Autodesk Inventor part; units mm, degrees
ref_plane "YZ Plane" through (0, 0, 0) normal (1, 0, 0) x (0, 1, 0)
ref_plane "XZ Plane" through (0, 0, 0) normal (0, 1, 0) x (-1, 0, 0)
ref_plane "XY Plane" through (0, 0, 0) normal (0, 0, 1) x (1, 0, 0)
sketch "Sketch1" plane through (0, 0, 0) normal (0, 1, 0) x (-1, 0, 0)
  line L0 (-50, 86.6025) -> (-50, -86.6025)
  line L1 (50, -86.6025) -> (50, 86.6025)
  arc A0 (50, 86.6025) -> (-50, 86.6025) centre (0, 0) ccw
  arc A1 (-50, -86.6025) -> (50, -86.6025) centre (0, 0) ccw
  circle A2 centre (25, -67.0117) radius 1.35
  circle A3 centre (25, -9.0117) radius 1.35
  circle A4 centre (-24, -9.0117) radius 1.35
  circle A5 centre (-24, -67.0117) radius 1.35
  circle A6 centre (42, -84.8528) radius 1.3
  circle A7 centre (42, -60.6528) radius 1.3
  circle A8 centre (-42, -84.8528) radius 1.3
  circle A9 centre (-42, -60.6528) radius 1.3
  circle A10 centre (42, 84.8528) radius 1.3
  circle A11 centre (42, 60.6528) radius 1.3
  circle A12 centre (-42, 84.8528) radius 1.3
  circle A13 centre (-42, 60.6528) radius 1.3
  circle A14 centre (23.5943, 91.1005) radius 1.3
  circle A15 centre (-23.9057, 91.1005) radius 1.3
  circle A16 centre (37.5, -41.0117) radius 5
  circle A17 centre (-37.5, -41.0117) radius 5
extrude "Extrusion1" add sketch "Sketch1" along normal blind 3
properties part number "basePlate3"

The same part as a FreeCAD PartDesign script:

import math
import FreeCAD as App
import Part
import Sketcher
from FreeCAD import Vector
Q = App.Units.Quantity

doc = App.newDocument("Part")
body = doc.addObject("PartDesign::Body", "Body")

# Sketch on XZ plane
sketch1 = body.newObject("Sketcher::SketchObject", "Sketch")
sketch1.AttachmentSupport = (doc.getObject("XZ_Plane"), [""])
sketch1.MapMode = "FlatFace"
sketch1.addGeometry(Part.ArcOfCircle(Part.Circle(Vector(0, 0, 0), Vector(0, 0, 1), 99.999965), math.radians(59.999988), math.radians(120.000012)), False)
sketch1.addGeometry(Part.LineSegment(Vector(50, 86.6025, 0), Vector(50, -86.6025, 0)), False)
sketch1.addGeometry(Part.ArcOfCircle(Part.Circle(Vector(0, 0, 0), Vector(0, 0, 1), 99.999965), math.radians(-120.000012), math.radians(-59.999988)), False)
sketch1.addGeometry(Part.LineSegment(Vector(-50, -86.6025, 0), Vector(-50, 86.6025, 0)), False)
sketch1.addGeometry(Part.Circle(Vector(42, -84.8528, 0), Vector(0, 0, 1), 1.3), False)
sketch1.addGeometry(Part.Circle(Vector(42, -60.6528, 0), Vector(0, 0, 1), 1.3), False)
sketch1.addGeometry(Part.Circle(Vector(24, -67.0117, 0), Vector(0, 0, 1), 1.35), False)
sketch1.addGeometry(Part.Circle(Vector(37.5, -41.0117, 0), Vector(0, 0, 1), 5), False)
sketch1.addGeometry(Part.Circle(Vector(24, -9.0117, 0), Vector(0, 0, 1), 1.35), False)
sketch1.addGeometry(Part.Circle(Vector(-25, -67.0117, 0), Vector(0, 0, 1), 1.35), False)
sketch1.addGeometry(Part.Circle(Vector(-42, -84.8528, 0), Vector(0, 0, 1), 1.3), False)
sketch1.addGeometry(Part.Circle(Vector(-42, -60.6528, 0), Vector(0, 0, 1), 1.3), False)
sketch1.addGeometry(Part.Circle(Vector(-25, -9.0117, 0), Vector(0, 0, 1), 1.35), False)
sketch1.addGeometry(Part.Circle(Vector(-37.5, -41.0117, 0), Vector(0, 0, 1), 5), False)
sketch1.addGeometry(Part.Circle(Vector(42, 60.6528, 0), Vector(0, 0, 1), 1.3), False)
sketch1.addGeometry(Part.Circle(Vector(42, 84.8528, 0), Vector(0, 0, 1), 1.3), False)
sketch1.addGeometry(Part.Circle(Vector(23.9057, 91.1005, 0), Vector(0, 0, 1), 1.3), False)
sketch1.addGeometry(Part.Circle(Vector(-23.5943, 91.1005, 0), Vector(0, 0, 1), 1.3), False)
sketch1.addGeometry(Part.Circle(Vector(-42, 60.6528, 0), Vector(0, 0, 1), 1.3), False)
sketch1.addGeometry(Part.Circle(Vector(-42, 84.8528, 0), Vector(0, 0, 1), 1.3), False)
sketch1.addConstraint(Sketcher.Constraint("Coincident", 0, 1, 1, 1))
sketch1.addConstraint(Sketcher.Constraint("Coincident", 1, 2, 2, 2))
sketch1.addConstraint(Sketcher.Constraint("Coincident", 2, 1, 3, 1))
sketch1.addConstraint(Sketcher.Constraint("Coincident", 3, 2, 0, 2))
sketch1.addConstraint(Sketcher.Constraint("Vertical", 1))
sketch1.addConstraint(Sketcher.Constraint("Vertical", 3))
sketch1.addConstraint(Sketcher.Constraint("Coincident", 0, 3, -1, 1))
sketch1.addConstraint(Sketcher.Constraint("Coincident", 2, 3, -1, 1))
sketch1.addConstraint(Sketcher.Constraint("Equal", 0, 2))
sketch1.addConstraint(Sketcher.Constraint("Equal", 4, 5))
sketch1.addConstraint(Sketcher.Constraint("Equal", 6, 8))
sketch1.addConstraint(Sketcher.Constraint("Equal", 8, 9))
sketch1.addConstraint(Sketcher.Constraint("Equal", 5, 10))
sketch1.addConstraint(Sketcher.Constraint("Equal", 10, 11))
sketch1.addConstraint(Sketcher.Constraint("Equal", 9, 12))
sketch1.addConstraint(Sketcher.Constraint("Equal", 7, 13))
sketch1.addConstraint(Sketcher.Constraint("Equal", 11, 14))
sketch1.addConstraint(Sketcher.Constraint("Equal", 14, 15))
sketch1.addConstraint(Sketcher.Constraint("Equal", 15, 16))
sketch1.addConstraint(Sketcher.Constraint("Equal", 16, 17))
sketch1.addConstraint(Sketcher.Constraint("Equal", 17, 18))
sketch1.addConstraint(Sketcher.Constraint("Equal", 18, 19))
sketch1.addConstraint(Sketcher.Constraint("Symmetric", 11, 3, 14, 3, -1, 1))
sketch1.addConstraint(Sketcher.Constraint("Symmetric", 10, 3, 15, 3, -1, 1))
sketch1.addConstraint(Sketcher.Constraint("Symmetric", 5, 3, 18, 3, -1, 1))
sketch1.addConstraint(Sketcher.Constraint("Symmetric", 4, 3, 19, 3, -1, 1))
sketch1.addConstraint(Sketcher.Constraint("Symmetric", 4, 3, 10, 3, -2))
sketch1.addConstraint(Sketcher.Constraint("Symmetric", 5, 3, 11, 3, -2))
sketch1.addConstraint(Sketcher.Constraint("Symmetric", 7, 3, 13, 3, -2))
sketch1.addConstraint(Sketcher.Constraint("Horizontal", 6, 3, 9, 3))
sketch1.addConstraint(Sketcher.Constraint("Horizontal", 8, 3, 12, 3))
sketch1.addConstraint(Sketcher.Constraint("Horizontal", 16, 3, 17, 3))
sketch1.addConstraint(Sketcher.Constraint("Horizontal", 1, 2, 2, 1))
sketch1.addConstraint(Sketcher.Constraint("Vertical", 4, 3, 5, 3))
sketch1.addConstraint(Sketcher.Constraint("Vertical", 6, 3, 8, 3))
sketch1.addConstraint(Sketcher.Constraint("Vertical", 9, 3, 12, 3))
sketch1.addConstraint(Sketcher.Constraint("Diameter", 7, Q("10 mm")))
sketch1.addConstraint(Sketcher.Constraint("Radius", 0, Q("100 mm")))
sketch1.addConstraint(Sketcher.Constraint("Diameter", 4, Q("2.6 mm")))
sketch1.addConstraint(Sketcher.Constraint("Diameter", 6, Q("2.7 mm")))
sketch1.addConstraint(Sketcher.Constraint("DistanceX", -1, 1, 4, 3, Q("42 mm")))
sketch1.addConstraint(Sketcher.Constraint("DistanceX", -1, 1, 6, 3, Q("24 mm")))
sketch1.addConstraint(Sketcher.Constraint("DistanceX", 9, 3, -1, 1, Q("25 mm")))
sketch1.addConstraint(Sketcher.Constraint("DistanceX", -1, 1, 0, 1, Q("50 mm")))
sketch1.addConstraint(Sketcher.Constraint("DistanceY", 6, 3, 7, 3, Q("26 mm")))
sketch1.addConstraint(Sketcher.Constraint("DistanceY", 7, 3, 8, 3, Q("32 mm")))
sketch1.addConstraint(Sketcher.Constraint("DistanceX", -1, 1, 7, 3, Q("37.5 mm")))
sketch1.addConstraint(Sketcher.Constraint("DistanceY", 4, 3, 5, 3, Q("24.2 mm")))
sketch1.addConstraint(Sketcher.Constraint("DistanceX", 17, 3, 16, 3, Q("47.5 mm")))
sketch1.addConstraint(Sketcher.Constraint("DistanceY", 6, 3, 5, 3, Q("6.359 mm")))
sketch1.addConstraint(Sketcher.Constraint("DistanceY", 0, 1, 16, 3, Q("4.498 mm")))
sketch1.addConstraint(Sketcher.Constraint("DistanceY", 4, 3, -1, 1, Q("84.8528 mm")))
sketch1.addConstraint(Sketcher.Constraint("DistanceX", -1, 1, 16, 3, Q("23.9057 mm")))
pad1 = body.newObject("PartDesign::Pad", "Pad")
pad1.Profile = sketch1
pad1.Length = 3
pad1.Reversed = True

doc.recompute()
